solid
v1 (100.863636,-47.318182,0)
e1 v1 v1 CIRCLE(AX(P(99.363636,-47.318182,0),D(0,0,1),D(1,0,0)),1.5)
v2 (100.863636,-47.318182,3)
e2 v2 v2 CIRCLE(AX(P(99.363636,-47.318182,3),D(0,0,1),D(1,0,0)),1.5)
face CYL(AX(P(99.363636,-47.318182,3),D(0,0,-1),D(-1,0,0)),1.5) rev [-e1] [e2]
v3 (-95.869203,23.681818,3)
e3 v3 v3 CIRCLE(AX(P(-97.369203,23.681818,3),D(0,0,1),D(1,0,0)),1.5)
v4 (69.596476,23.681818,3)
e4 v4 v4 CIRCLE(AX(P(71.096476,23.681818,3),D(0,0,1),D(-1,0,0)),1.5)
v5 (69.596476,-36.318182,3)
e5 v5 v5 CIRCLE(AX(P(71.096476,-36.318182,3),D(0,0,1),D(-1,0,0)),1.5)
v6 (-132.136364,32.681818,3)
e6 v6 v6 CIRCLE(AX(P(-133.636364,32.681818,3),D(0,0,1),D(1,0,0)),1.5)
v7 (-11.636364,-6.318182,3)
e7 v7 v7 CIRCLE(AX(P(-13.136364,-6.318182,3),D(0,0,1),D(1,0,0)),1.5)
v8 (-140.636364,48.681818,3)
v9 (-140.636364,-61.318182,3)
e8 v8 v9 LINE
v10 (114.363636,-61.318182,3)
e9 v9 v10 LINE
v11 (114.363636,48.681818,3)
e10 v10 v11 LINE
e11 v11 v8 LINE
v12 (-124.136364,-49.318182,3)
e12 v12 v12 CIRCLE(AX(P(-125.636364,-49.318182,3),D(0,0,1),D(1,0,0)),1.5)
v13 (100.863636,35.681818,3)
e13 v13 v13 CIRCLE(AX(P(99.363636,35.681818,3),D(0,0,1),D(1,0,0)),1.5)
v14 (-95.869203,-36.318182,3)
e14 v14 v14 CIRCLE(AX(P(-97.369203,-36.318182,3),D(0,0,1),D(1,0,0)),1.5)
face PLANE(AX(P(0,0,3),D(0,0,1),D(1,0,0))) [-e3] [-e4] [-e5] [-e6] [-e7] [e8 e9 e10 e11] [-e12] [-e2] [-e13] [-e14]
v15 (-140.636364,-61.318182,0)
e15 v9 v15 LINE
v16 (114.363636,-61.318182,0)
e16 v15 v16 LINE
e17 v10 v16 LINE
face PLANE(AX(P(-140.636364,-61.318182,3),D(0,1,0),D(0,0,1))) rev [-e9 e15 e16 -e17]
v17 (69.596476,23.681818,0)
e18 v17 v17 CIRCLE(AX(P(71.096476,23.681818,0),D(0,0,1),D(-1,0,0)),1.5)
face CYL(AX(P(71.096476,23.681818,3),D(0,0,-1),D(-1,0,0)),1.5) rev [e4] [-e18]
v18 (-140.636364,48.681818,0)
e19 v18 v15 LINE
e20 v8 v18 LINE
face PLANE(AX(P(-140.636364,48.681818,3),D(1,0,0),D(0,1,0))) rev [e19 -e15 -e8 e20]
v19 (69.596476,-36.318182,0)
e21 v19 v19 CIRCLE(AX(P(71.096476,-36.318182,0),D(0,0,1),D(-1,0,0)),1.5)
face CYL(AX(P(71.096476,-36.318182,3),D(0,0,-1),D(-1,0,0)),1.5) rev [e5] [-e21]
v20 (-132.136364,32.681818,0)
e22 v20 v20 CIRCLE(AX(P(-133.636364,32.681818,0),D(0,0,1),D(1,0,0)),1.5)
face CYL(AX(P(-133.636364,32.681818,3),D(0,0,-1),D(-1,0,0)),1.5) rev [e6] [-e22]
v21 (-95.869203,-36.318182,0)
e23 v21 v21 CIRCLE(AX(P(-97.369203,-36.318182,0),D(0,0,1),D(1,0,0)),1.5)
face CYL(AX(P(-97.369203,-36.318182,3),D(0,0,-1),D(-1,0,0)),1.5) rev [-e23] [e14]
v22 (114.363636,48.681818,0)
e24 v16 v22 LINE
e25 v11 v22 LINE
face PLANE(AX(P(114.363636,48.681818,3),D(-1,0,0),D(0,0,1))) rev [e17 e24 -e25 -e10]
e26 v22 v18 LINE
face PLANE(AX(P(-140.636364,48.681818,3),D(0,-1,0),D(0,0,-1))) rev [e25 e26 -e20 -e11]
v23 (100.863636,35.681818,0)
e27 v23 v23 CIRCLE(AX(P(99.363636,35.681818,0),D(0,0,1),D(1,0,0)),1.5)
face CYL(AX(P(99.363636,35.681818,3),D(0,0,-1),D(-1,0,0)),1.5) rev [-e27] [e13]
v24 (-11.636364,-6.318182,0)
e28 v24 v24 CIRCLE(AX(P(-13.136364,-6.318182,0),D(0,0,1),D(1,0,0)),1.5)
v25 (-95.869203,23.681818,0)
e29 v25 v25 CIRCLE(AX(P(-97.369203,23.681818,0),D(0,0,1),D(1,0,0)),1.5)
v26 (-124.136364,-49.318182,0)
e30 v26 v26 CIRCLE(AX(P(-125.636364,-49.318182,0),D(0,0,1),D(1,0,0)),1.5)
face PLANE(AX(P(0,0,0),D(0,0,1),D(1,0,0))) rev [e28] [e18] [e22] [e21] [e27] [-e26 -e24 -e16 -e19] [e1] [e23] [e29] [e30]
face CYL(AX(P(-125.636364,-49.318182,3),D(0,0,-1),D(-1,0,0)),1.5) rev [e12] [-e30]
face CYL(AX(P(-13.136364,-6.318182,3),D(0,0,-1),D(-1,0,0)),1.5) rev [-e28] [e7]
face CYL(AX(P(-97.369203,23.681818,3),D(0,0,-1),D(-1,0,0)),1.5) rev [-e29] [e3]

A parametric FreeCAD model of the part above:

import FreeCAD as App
import Part
import Sketcher

V = App.Vector
Q = App.Units.Quantity


def add_polygon(sketch, points):
    """Adds a closed chain of lines whose ends are joined by coincident constraints."""
    first, n = sketch.GeometryCount, len(points)
    for a, b in zip(points, points[1:] + points[:1]):
        sketch.addGeometry(Part.LineSegment(App.Vector(*a, 0), App.Vector(*b, 0)), False)
    for i in range(n):
        sketch.addConstraint(Sketcher.Constraint("Coincident", first + i, 2, first + (i + 1) % n, 1))

doc = App.newDocument("Part")
body = doc.addObject("PartDesign::Body", "Body")

sketch1 = body.newObject("Sketcher::SketchObject", "Sketch")
sketch1.AttachmentSupport = (doc.getObject("XY_Plane"), [""])
sketch1.MapMode = "FlatFace"
add_polygon(sketch1, [(-140.636364, 48.681818), (-140.636364, -61.318182), (114.363636, -61.318182), (114.363636, 48.681818)])
sketch1.addGeometry(Part.Circle(V(-125.636364, -49.318182, 0), V(0, 0, 1), 1.5), False)
sketch1.addGeometry(Part.Circle(V(-97.369203, -36.318182, 0), V(0, 0, 1), 1.5), False)
sketch1.addGeometry(Part.Circle(V(99.363636, -47.318182, 0), V(0, 0, 1), 1.5), False)
sketch1.addGeometry(Part.Circle(V(71.096476, -36.318182, 0), V(0, 0, 1), 1.5), False)
sketch1.addGeometry(Part.Circle(V(-97.369203, 23.681818, 0), V(0, 0, 1), 1.5), False)
sketch1.addGeometry(Part.Circle(V(-133.636364, 32.681818, 0), V(0, 0, 1), 1.5), False)
sketch1.addGeometry(Part.Circle(V(-13.136364, -6.318182, 0), V(0, 0, 1), 1.5), False)
sketch1.addGeometry(Part.Circle(V(71.096476, 23.681818, 0), V(0, 0, 1), 1.5), False)
sketch1.addGeometry(Part.Circle(V(99.363636, 35.681818, 0), V(0, 0, 1), 1.5), False)
sketch1.addConstraint(Sketcher.Constraint("Vertical", 0))
sketch1.addConstraint(Sketcher.Constraint("Horizontal", 1))
sketch1.addConstraint(Sketcher.Constraint("Vertical", 2))
sketch1.addConstraint(Sketcher.Constraint("Horizontal", 3))
sketch1.addConstraint(Sketcher.Constraint("Equal", 4, 5))
sketch1.addConstraint(Sketcher.Constraint("Equal", 5, 6))
sketch1.addConstraint(Sketcher.Constraint("Equal", 6, 7))
sketch1.addConstraint(Sketcher.Constraint("Equal", 7, 8))
sketch1.addConstraint(Sketcher.Constraint("Equal", 8, 9))
sketch1.addConstraint(Sketcher.Constraint("Equal", 9, 10))
sketch1.addConstraint(Sketcher.Constraint("Equal", 10, 11))
sketch1.addConstraint(Sketcher.Constraint("Equal", 11, 12))
sketch1.addConstraint(Sketcher.Constraint("Horizontal", 5, 3, 7, 3))
sketch1.addConstraint(Sketcher.Constraint("Horizontal", 8, 3, 11, 3))
sketch1.addConstraint(Sketcher.Constraint("Vertical", 5, 3, 8, 3))
sketch1.addConstraint(Sketcher.Constraint("Vertical", 7, 3, 11, 3))
sketch1.addConstraint(Sketcher.Constraint("Vertical", 6, 3, 12, 3))
sketch1.addConstraint(Sketcher.Constraint("Diameter", 4, Q("3 mm")))
sketch1.addConstraint(Sketcher.Constraint("DistanceX", 1, 1, 1, 2, Q("255 mm")))
sketch1.addConstraint(Sketcher.Constraint("DistanceY", 0, 2, 0, 1, Q("110 mm")))
sketch1.addConstraint(Sketcher.Constraint("DistanceY", 4, 3, 5, 3, Q("13 mm")))
sketch1.addConstraint(Sketcher.Constraint("DistanceY", 6, 3, 5, 3, Q("11 mm")))
sketch1.addConstraint(Sketcher.Constraint("DistanceX", 4, 3, 6, 3, Q("225 mm")))
sketch1.addConstraint(Sketcher.Constraint("DistanceY", 5, 3, 8, 3, Q("60 mm")))
sketch1.addConstraint(Sketcher.Constraint("DistanceY", 8, 3, 9, 3, Q("9 mm")))
sketch1.addConstraint(Sketcher.Constraint("DistanceX", 9, 3, 4, 3, Q("8 mm")))
sketch1.addConstraint(Sketcher.Constraint("DistanceY", 5, 3, 10, 3, Q("30 mm")))
sketch1.addConstraint(Sketcher.Constraint("DistanceY", 11, 3, 12, 3, Q("12 mm")))
sketch1.addConstraint(Sketcher.Constraint("DistanceX", 0, 2, 4, 3, Q("15 mm")))
sketch1.addConstraint(Sketcher.Constraint("DistanceY", 0, 2, 4, 3, Q("12 mm")))
sketch1.addConstraint(Sketcher.Constraint("DistanceX", 10, 3, 6, 3, Q("112.5 mm")))
sketch1.addConstraint(Sketcher.Constraint("DistanceY", 4, 3, -1, 1, Q("49.318182 mm")))
sketch1.addConstraint(Sketcher.Constraint("DistanceX", 4, 3, 5, 3, Q("28.267161 mm")))
sketch1.addConstraint(Sketcher.Constraint("DistanceX", 7, 3, 6, 3, Q("28.267161 mm")))
sketch1.addConstraint(Sketcher.Constraint("DistanceX", 4, 3, -1, 1, Q("125.636364 mm")))
pad1 = body.newObject("PartDesign::Pad", "Pad")
pad1.Profile = sketch1
pad1.Length = 3

doc.recompute()
